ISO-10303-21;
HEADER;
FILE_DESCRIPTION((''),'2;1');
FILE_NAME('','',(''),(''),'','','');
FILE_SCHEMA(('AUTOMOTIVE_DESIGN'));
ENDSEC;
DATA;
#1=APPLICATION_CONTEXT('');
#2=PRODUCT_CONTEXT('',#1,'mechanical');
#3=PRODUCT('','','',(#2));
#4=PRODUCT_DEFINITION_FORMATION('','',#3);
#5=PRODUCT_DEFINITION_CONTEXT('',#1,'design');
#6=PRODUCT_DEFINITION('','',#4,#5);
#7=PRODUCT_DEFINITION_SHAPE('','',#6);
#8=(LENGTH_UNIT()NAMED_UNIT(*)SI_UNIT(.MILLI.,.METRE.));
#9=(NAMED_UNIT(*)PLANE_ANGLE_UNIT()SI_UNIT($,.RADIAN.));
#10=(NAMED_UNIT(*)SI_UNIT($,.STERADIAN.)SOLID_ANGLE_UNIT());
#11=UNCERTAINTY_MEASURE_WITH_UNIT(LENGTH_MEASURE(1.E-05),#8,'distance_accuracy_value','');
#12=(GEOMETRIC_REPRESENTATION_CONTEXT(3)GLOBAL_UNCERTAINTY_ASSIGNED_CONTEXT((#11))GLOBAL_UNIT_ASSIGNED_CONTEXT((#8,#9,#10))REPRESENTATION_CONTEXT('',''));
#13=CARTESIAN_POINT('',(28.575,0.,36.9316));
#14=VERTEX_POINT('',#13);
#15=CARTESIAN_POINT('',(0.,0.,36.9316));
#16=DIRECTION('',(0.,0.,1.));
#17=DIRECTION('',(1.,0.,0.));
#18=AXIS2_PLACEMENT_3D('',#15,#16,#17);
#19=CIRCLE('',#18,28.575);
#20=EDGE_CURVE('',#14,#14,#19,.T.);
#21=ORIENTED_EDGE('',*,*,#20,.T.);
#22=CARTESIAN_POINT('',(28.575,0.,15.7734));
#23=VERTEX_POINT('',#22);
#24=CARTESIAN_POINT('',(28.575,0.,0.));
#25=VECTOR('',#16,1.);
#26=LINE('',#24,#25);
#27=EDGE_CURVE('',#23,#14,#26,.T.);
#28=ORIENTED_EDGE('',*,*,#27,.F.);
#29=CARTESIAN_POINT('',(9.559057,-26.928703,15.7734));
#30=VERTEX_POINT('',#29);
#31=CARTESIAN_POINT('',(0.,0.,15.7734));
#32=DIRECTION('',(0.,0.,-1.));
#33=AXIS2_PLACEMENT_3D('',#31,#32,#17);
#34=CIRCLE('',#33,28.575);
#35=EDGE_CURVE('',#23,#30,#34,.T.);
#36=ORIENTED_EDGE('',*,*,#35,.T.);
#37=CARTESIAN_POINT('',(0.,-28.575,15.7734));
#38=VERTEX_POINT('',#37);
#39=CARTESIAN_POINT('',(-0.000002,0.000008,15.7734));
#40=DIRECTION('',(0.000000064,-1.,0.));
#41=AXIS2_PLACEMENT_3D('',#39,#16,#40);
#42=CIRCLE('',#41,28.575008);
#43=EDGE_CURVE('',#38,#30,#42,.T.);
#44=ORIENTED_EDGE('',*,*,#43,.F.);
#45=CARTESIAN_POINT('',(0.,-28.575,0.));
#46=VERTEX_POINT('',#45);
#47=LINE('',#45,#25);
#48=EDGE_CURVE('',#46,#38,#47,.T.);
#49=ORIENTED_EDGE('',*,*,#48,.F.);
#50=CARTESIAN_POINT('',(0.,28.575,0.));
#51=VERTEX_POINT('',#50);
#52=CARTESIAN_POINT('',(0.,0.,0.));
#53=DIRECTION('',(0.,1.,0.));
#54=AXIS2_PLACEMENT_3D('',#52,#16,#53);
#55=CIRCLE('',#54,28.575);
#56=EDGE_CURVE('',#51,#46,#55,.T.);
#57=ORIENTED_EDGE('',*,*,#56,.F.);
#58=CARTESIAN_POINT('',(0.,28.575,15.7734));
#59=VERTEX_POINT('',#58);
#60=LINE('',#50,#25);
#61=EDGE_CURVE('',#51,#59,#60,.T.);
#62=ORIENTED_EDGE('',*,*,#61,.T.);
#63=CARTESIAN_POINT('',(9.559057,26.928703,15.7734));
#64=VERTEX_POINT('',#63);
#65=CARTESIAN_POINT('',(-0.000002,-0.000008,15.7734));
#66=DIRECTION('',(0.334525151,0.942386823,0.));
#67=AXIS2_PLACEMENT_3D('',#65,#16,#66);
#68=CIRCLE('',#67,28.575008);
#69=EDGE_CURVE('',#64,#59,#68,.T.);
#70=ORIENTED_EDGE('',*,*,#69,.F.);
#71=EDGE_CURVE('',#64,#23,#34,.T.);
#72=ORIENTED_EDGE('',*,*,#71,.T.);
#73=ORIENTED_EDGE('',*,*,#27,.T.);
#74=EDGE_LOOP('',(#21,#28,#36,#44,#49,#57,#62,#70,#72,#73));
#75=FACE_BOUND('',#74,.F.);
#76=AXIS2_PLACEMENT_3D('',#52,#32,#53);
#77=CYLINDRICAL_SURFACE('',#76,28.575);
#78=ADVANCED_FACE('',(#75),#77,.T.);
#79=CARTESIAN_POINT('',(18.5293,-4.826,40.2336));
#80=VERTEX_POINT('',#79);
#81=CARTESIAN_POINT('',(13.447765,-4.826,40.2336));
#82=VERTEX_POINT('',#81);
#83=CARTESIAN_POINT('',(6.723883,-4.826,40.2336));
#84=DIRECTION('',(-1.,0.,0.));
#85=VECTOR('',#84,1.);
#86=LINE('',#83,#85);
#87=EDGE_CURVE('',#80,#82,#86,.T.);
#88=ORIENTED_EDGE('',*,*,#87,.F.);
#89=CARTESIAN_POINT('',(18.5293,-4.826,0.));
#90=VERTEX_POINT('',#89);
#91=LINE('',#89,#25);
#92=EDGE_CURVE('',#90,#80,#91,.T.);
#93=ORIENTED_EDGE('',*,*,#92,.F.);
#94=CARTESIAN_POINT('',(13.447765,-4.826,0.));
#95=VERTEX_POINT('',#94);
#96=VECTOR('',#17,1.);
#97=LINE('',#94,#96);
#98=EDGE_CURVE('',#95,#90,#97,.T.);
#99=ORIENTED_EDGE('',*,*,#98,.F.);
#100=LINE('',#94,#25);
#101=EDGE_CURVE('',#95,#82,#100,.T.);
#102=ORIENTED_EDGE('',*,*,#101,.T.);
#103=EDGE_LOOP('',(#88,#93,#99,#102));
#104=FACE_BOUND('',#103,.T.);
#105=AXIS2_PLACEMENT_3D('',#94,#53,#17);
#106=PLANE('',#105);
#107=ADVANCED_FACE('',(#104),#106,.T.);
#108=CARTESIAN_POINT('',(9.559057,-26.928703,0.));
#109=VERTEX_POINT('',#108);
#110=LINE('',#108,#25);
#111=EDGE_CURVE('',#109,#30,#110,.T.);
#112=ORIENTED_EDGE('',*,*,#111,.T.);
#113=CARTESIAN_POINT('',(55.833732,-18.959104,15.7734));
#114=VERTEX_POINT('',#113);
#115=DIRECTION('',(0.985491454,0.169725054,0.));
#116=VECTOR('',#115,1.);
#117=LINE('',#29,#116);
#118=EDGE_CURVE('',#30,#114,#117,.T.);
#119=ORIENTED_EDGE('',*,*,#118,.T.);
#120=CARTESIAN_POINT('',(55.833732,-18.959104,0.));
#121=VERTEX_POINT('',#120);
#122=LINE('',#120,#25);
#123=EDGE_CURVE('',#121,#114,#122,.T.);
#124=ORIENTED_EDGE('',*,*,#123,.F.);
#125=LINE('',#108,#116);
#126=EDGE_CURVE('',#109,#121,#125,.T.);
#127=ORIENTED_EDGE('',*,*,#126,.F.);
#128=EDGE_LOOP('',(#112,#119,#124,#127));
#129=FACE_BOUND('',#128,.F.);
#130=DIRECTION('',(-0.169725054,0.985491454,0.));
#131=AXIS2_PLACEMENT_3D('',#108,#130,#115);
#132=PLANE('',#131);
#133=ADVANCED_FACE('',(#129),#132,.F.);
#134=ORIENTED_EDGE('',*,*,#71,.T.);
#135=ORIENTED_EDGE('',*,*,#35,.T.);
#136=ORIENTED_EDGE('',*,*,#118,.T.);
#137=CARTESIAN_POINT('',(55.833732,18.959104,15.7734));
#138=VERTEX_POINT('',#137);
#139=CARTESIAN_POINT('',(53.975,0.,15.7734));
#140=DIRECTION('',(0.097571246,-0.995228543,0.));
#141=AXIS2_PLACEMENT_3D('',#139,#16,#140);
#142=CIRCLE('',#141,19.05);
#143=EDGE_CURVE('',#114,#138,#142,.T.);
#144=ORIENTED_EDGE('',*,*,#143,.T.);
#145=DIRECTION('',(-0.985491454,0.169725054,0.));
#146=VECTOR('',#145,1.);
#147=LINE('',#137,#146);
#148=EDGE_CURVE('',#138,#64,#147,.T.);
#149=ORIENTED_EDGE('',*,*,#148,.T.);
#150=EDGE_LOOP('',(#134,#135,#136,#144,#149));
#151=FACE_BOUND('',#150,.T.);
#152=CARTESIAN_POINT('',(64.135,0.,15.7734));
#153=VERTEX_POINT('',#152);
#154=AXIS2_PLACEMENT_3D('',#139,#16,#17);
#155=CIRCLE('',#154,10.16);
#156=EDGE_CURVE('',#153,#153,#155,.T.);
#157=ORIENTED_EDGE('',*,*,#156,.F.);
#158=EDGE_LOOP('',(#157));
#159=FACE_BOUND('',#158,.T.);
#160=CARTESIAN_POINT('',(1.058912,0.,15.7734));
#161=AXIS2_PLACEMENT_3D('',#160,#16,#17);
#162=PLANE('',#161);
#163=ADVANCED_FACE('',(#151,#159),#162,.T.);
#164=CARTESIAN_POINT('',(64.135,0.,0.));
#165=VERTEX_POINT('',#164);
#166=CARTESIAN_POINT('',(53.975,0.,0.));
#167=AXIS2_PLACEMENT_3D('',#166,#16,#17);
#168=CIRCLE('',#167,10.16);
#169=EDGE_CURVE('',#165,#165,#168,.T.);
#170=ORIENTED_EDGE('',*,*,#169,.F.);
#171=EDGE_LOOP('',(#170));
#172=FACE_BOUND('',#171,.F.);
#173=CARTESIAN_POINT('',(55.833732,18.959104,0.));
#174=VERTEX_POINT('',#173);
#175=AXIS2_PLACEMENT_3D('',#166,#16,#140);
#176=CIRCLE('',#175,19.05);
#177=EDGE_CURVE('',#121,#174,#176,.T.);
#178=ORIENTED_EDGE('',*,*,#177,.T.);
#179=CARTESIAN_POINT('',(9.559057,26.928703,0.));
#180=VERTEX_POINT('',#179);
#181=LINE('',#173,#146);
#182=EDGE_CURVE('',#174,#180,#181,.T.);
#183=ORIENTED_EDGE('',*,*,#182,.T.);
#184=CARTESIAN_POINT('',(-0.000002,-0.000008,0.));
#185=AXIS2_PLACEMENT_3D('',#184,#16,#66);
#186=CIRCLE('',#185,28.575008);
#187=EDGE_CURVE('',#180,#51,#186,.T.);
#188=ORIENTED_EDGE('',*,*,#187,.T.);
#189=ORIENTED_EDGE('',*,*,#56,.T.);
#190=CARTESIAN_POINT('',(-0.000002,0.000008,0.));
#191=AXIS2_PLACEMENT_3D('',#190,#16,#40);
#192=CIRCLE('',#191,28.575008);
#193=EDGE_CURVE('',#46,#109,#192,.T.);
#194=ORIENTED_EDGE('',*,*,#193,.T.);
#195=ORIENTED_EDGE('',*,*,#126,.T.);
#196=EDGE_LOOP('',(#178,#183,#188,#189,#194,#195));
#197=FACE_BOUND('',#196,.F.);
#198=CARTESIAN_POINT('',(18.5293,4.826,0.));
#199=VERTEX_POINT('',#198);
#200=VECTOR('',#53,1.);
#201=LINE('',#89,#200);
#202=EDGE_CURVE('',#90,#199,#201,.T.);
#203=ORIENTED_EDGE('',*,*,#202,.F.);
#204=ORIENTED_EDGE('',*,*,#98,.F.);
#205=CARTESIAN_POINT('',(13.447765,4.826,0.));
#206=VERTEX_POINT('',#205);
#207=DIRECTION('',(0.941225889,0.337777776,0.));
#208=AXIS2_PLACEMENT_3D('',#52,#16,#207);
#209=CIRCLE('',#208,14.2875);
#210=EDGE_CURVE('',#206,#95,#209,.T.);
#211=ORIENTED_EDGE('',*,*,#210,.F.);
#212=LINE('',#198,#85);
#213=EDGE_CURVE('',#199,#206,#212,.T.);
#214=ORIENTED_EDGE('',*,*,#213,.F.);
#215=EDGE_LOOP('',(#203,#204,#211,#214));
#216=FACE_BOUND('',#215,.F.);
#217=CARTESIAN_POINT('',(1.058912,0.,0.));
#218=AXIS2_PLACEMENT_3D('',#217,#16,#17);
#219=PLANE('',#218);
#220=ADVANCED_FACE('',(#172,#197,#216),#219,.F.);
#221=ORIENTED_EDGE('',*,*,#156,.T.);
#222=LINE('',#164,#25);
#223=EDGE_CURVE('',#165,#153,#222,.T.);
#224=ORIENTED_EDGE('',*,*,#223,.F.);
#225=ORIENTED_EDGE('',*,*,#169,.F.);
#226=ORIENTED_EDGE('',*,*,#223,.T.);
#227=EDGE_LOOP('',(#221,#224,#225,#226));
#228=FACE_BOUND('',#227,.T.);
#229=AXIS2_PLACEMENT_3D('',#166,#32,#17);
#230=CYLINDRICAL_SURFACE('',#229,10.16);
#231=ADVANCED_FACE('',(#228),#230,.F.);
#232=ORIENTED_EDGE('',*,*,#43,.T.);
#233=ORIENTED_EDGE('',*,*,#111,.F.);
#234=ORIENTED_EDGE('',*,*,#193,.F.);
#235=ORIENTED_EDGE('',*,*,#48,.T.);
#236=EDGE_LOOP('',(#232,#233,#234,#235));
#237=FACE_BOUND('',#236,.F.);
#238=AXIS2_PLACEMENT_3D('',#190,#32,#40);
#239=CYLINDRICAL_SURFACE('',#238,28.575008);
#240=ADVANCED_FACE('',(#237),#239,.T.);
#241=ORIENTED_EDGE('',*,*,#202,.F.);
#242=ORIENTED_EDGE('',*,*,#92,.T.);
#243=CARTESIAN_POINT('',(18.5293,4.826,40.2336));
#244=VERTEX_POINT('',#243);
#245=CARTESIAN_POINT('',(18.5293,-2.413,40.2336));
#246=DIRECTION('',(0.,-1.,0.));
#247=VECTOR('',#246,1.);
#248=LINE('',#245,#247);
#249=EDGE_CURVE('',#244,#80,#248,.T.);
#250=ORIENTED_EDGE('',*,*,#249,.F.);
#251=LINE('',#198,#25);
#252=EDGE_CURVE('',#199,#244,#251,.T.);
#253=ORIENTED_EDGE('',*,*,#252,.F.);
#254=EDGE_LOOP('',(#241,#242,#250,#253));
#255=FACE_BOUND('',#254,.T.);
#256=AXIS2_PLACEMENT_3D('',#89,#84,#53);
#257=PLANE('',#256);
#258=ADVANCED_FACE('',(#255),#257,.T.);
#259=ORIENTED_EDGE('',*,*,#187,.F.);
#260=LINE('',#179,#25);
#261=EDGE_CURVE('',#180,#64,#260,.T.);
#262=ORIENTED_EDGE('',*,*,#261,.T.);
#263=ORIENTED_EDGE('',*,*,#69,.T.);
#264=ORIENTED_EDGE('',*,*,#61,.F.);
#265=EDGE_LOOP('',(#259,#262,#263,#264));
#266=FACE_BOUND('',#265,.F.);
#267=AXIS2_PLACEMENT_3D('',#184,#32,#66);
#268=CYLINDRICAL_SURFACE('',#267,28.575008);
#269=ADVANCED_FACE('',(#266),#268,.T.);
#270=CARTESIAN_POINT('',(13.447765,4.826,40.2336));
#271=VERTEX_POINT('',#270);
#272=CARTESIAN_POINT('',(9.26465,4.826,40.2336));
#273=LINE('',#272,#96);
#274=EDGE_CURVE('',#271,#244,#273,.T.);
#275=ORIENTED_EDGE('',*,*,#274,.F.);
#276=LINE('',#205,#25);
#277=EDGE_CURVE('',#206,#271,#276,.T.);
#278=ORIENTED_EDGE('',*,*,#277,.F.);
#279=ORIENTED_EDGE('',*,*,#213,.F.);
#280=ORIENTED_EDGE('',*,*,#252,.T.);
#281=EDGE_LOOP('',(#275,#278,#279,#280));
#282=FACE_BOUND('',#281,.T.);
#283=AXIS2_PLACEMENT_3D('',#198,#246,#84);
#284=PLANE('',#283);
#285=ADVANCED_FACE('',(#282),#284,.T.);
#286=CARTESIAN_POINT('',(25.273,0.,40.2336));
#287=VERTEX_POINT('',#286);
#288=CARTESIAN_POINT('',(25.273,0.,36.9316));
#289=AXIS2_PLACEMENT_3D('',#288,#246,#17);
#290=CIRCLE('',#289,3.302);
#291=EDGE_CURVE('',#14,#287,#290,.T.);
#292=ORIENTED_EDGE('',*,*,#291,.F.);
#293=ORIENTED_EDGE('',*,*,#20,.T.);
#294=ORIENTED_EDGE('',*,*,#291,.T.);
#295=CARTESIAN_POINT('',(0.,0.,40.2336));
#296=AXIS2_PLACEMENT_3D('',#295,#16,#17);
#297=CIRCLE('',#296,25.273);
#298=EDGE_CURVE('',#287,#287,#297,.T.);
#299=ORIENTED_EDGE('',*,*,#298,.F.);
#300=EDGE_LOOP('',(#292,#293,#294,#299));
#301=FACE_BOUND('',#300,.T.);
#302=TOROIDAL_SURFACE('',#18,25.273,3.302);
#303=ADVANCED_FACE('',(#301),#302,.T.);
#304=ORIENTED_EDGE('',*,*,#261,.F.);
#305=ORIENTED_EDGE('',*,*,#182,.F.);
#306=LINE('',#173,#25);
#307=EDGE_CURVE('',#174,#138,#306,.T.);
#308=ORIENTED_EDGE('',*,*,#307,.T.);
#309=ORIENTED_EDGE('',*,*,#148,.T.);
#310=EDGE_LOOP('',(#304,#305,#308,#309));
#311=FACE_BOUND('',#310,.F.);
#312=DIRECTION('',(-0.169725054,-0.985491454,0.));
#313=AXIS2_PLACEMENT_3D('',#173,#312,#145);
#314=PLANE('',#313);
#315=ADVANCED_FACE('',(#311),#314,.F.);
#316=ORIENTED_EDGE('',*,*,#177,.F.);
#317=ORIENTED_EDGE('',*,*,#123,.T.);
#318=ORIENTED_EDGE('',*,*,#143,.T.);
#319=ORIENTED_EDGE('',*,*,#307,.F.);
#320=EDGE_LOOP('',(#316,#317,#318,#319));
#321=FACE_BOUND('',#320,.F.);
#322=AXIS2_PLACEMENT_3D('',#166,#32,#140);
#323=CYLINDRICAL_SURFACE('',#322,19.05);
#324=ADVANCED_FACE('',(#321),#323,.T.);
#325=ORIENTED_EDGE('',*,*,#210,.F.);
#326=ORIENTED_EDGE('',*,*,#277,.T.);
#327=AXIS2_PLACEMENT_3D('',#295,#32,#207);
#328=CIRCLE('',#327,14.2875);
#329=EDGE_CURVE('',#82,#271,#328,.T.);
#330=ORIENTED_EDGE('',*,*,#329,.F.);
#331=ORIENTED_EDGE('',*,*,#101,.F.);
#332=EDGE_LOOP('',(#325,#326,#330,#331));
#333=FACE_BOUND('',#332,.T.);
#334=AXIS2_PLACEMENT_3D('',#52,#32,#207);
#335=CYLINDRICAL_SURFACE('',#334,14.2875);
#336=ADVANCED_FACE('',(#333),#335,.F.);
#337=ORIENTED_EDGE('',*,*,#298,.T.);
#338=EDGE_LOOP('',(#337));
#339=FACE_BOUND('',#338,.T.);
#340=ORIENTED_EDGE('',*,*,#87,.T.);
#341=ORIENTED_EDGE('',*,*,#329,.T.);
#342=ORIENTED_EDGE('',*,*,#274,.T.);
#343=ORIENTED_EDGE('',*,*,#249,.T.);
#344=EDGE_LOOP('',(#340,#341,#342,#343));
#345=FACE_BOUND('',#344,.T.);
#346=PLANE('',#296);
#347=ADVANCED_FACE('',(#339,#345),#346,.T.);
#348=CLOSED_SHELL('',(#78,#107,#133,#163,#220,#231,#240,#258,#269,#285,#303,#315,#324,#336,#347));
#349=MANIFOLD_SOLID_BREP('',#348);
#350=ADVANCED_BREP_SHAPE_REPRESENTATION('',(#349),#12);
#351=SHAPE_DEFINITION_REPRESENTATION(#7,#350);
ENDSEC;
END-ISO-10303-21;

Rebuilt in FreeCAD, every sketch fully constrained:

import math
import FreeCAD as App
import Part
import Sketcher
Q = App.Units.Quantity


def edges_at(feature, points):
    """Names of the edges that pass closest to the given points."""
    edges = feature.Shape.Edges
    near = lambda p: min(range(len(edges)), key=lambda i: edges[i].distToShape(Part.Vertex(*p))[0])
    return sorted({f"Edge{near(p) + 1}" for p in points})

doc = App.newDocument("Part")
body = doc.addObject("PartDesign::Body", "Body")

# Sketch on XY plane
sketch1 = body.newObject("Sketcher::SketchObject", "Sketch")
sketch1.AttachmentSupport = (doc.getObject("XY_Plane"), [""])
sketch1.MapMode = "FlatFace"
sketch1.addGeometry(Part.ArcOfCircle(Part.Circle(App.Vector(0, 0, 0), App.Vector(0, 0, 1), 29), math.radians(70.46), math.radians(90)), False)
sketch1.addGeometry(Part.ArcOfCircle(Part.Circle(App.Vector(0, 0, 0), App.Vector(0, 0, 1), 29), math.radians(90), math.radians(270)), False)
sketch1.addGeometry(Part.ArcOfCircle(Part.Circle(App.Vector(0, 0, 0), App.Vector(0, 0, 1), 29), math.radians(-90), math.radians(-70.46)), False)
sketch1.addGeometry(Part.LineSegment(App.Vector(10, -27, 0), App.Vector(56, -19, 0)), False)
sketch1.addGeometry(Part.ArcOfCircle(Part.Circle(App.Vector(54, 0, 0), App.Vector(0, 0, 1), 19), math.radians(-84), math.radians(84)), False)
sketch1.addGeometry(Part.LineSegment(App.Vector(56, 19, 0), App.Vector(10, 27, 0)), False)
sketch1.addGeometry(Part.LineSegment(App.Vector(19, -5, 0), App.Vector(13, -5, 0)), False)
sketch1.addGeometry(Part.ArcOfCircle(Part.Circle(App.Vector(0, 0, 0), App.Vector(0, 0, 1), 14), math.radians(20), math.radians(340)), False)
sketch1.addGeometry(Part.LineSegment(App.Vector(13, 5, 0), App.Vector(19, 5, 0)), False)
sketch1.addGeometry(Part.LineSegment(App.Vector(19, 5, 0), App.Vector(19, -5, 0)), False)
sketch1.addGeometry(Part.Circle(App.Vector(54, 0, 0), App.Vector(0, 0, 1), 10), False)
sketch1.addConstraint(Sketcher.Constraint("Tangent", 0, 2, 1, 1))
sketch1.addConstraint(Sketcher.Constraint("Tangent", 1, 2, 2, 1))
sketch1.addConstraint(Sketcher.Constraint("Coincident", 2, 2, 3, 1))
sketch1.addConstraint(Sketcher.Constraint("Coincident", 3, 2, 4, 1))
sketch1.addConstraint(Sketcher.Constraint("Coincident", 4, 2, 5, 1))
sketch1.addConstraint(Sketcher.Constraint("Coincident", 5, 2, 0, 1))
sketch1.addConstraint(Sketcher.Constraint("Coincident", 6, 2, 7, 2))
sketch1.addConstraint(Sketcher.Constraint("Coincident", 7, 1, 8, 1))
sketch1.addConstraint(Sketcher.Constraint("Coincident", 8, 2, 9, 1))
sketch1.addConstraint(Sketcher.Constraint("Coincident", 9, 2, 6, 1))
sketch1.addConstraint(Sketcher.Constraint("Horizontal", 6))
sketch1.addConstraint(Sketcher.Constraint("Horizontal", 8))
sketch1.addConstraint(Sketcher.Constraint("Vertical", 9))
sketch1.addConstraint(Sketcher.Constraint("Coincident", 0, 3, -1, 1))
sketch1.addConstraint(Sketcher.Constraint("Coincident", 7, 3, -1, 1))
sketch1.addConstraint(Sketcher.Constraint("Coincident", 10, 3, 4, 3))
sketch1.addConstraint(Sketcher.Constraint("Equal", 0, 2))
sketch1.addConstraint(Sketcher.Constraint("Symmetric", 0, 2, 1, 2, -1, 1))
sketch1.addConstraint(Sketcher.Constraint("Symmetric", 3, 2, 4, 2, -1))
sketch1.addConstraint(Sketcher.Constraint("PointOnObject", 0, 2, -2))
sketch1.addConstraint(Sketcher.Constraint("Vertical", 2, 2, 5, 2))
sketch1.addConstraint(Sketcher.Constraint("Vertical", 6, 2, 7, 1))
sketch1.addConstraint(Sketcher.Constraint("Diameter", 10, Q("0.8 in")))
sketch1.addConstraint(Sketcher.Constraint("Radius", 4, Q("0.75 in")))
sketch1.addConstraint(Sketcher.Constraint("Radius", 1, Q("1.125 in")))
sketch1.addConstraint(Sketcher.Constraint("Radius", 7, Q("0.5625 in")))
sketch1.addConstraint(Sketcher.Constraint("DistanceY", 9, 2, 9, 1, Q("0.38 in")))
sketch1.addConstraint(Sketcher.Constraint("DistanceX", -1, 1, 4, 3, Q("2.125 in")))
sketch1.addConstraint(Sketcher.Constraint("DistanceX", -1, 1, 8, 2, Q("0.7295 in")))
sketch1.addConstraint(Sketcher.Constraint("DistanceY", 2, 2, 3, 2, 7.969599))
sketch1.addConstraint(Sketcher.Constraint("DistanceX", -1, 1, 3, 2, 55.833732))
pad1 = body.newObject("PartDesign::Pad", "Pad")
pad1.Profile = sketch1
pad1.Length = Q("0.621 in")

# Sketch on XY plane
sketch2 = body.newObject("Sketcher::SketchObject", "Sketch001")
sketch2.AttachmentSupport = (doc.getObject("XY_Plane"), [""])
sketch2.MapMode = "FlatFace"
sketch2.addGeometry(Part.Circle(App.Vector(0, 0, 0), App.Vector(0, 0, 1), 29), False)
sketch2.addConstraint(Sketcher.Constraint("Coincident", 0, 3, -1, 1))
sketch2.addConstraint(Sketcher.Constraint("Diameter", 0, Q("2.25 in")))
pad2 = body.newObject("PartDesign::Pad", "Pad001")
pad2.Profile = sketch2
pad2.Length = Q("1.584 in")

# Sketch on XY plane
sketch3 = body.newObject("Sketcher::SketchObject", "Sketch002")
sketch3.AttachmentSupport = (doc.getObject("XY_Plane"), [""])
sketch3.MapMode = "FlatFace"
sketch3.addGeometry(Part.LineSegment(App.Vector(19, 5, 0), App.Vector(13, 5, 0)), False)
sketch3.addGeometry(Part.ArcOfCircle(Part.Circle(App.Vector(0, 0, 0), App.Vector(0, 0, 1), 14), math.radians(20), math.radians(340)), False)
sketch3.addGeometry(Part.LineSegment(App.Vector(13, -5, 0), App.Vector(19, -5, 0)), False)
sketch3.addGeometry(Part.LineSegment(App.Vector(19, -5, 0), App.Vector(19, 5, 0)), False)
sketch3.addConstraint(Sketcher.Constraint("Coincident", 0, 2, 1, 1))
sketch3.addConstraint(Sketcher.Constraint("Coincident", 1, 2, 2, 1))
sketch3.addConstraint(Sketcher.Constraint("Coincident", 2, 2, 3, 1))
sketch3.addConstraint(Sketcher.Constraint("Coincident", 3, 2, 0, 1))
sketch3.addConstraint(Sketcher.Constraint("Horizontal", 0))
sketch3.addConstraint(Sketcher.Constraint("Horizontal", 2))
sketch3.addConstraint(Sketcher.Constraint("Vertical", 3))
sketch3.addConstraint(Sketcher.Constraint("Coincident", 1, 3, -1, 1))
sketch3.addConstraint(Sketcher.Constraint("Vertical", 0, 2, 1, 2))
sketch3.addConstraint(Sketcher.Constraint("Radius", 1, Q("0.5625 in")))
sketch3.addConstraint(Sketcher.Constraint("DistanceY", 3, 1, 3, 2, Q("0.38 in")))
sketch3.addConstraint(Sketcher.Constraint("DistanceX", -1, 1, 2, 2, Q("0.7295 in")))
pocket1 = body.newObject("PartDesign::Pocket", "Pocket")
pocket1.Profile = sketch3
pocket1.Type = "ThroughAll"
pocket1.Reversed = True
doc.recompute()

fillet = body.newObject("PartDesign::Fillet", "Fillet")
fillet.Base = (pocket1, edges_at(pocket1, [(-28.575, 0, 40.234)]))
fillet.Radius = Q("0.13 in")

doc.recompute()
